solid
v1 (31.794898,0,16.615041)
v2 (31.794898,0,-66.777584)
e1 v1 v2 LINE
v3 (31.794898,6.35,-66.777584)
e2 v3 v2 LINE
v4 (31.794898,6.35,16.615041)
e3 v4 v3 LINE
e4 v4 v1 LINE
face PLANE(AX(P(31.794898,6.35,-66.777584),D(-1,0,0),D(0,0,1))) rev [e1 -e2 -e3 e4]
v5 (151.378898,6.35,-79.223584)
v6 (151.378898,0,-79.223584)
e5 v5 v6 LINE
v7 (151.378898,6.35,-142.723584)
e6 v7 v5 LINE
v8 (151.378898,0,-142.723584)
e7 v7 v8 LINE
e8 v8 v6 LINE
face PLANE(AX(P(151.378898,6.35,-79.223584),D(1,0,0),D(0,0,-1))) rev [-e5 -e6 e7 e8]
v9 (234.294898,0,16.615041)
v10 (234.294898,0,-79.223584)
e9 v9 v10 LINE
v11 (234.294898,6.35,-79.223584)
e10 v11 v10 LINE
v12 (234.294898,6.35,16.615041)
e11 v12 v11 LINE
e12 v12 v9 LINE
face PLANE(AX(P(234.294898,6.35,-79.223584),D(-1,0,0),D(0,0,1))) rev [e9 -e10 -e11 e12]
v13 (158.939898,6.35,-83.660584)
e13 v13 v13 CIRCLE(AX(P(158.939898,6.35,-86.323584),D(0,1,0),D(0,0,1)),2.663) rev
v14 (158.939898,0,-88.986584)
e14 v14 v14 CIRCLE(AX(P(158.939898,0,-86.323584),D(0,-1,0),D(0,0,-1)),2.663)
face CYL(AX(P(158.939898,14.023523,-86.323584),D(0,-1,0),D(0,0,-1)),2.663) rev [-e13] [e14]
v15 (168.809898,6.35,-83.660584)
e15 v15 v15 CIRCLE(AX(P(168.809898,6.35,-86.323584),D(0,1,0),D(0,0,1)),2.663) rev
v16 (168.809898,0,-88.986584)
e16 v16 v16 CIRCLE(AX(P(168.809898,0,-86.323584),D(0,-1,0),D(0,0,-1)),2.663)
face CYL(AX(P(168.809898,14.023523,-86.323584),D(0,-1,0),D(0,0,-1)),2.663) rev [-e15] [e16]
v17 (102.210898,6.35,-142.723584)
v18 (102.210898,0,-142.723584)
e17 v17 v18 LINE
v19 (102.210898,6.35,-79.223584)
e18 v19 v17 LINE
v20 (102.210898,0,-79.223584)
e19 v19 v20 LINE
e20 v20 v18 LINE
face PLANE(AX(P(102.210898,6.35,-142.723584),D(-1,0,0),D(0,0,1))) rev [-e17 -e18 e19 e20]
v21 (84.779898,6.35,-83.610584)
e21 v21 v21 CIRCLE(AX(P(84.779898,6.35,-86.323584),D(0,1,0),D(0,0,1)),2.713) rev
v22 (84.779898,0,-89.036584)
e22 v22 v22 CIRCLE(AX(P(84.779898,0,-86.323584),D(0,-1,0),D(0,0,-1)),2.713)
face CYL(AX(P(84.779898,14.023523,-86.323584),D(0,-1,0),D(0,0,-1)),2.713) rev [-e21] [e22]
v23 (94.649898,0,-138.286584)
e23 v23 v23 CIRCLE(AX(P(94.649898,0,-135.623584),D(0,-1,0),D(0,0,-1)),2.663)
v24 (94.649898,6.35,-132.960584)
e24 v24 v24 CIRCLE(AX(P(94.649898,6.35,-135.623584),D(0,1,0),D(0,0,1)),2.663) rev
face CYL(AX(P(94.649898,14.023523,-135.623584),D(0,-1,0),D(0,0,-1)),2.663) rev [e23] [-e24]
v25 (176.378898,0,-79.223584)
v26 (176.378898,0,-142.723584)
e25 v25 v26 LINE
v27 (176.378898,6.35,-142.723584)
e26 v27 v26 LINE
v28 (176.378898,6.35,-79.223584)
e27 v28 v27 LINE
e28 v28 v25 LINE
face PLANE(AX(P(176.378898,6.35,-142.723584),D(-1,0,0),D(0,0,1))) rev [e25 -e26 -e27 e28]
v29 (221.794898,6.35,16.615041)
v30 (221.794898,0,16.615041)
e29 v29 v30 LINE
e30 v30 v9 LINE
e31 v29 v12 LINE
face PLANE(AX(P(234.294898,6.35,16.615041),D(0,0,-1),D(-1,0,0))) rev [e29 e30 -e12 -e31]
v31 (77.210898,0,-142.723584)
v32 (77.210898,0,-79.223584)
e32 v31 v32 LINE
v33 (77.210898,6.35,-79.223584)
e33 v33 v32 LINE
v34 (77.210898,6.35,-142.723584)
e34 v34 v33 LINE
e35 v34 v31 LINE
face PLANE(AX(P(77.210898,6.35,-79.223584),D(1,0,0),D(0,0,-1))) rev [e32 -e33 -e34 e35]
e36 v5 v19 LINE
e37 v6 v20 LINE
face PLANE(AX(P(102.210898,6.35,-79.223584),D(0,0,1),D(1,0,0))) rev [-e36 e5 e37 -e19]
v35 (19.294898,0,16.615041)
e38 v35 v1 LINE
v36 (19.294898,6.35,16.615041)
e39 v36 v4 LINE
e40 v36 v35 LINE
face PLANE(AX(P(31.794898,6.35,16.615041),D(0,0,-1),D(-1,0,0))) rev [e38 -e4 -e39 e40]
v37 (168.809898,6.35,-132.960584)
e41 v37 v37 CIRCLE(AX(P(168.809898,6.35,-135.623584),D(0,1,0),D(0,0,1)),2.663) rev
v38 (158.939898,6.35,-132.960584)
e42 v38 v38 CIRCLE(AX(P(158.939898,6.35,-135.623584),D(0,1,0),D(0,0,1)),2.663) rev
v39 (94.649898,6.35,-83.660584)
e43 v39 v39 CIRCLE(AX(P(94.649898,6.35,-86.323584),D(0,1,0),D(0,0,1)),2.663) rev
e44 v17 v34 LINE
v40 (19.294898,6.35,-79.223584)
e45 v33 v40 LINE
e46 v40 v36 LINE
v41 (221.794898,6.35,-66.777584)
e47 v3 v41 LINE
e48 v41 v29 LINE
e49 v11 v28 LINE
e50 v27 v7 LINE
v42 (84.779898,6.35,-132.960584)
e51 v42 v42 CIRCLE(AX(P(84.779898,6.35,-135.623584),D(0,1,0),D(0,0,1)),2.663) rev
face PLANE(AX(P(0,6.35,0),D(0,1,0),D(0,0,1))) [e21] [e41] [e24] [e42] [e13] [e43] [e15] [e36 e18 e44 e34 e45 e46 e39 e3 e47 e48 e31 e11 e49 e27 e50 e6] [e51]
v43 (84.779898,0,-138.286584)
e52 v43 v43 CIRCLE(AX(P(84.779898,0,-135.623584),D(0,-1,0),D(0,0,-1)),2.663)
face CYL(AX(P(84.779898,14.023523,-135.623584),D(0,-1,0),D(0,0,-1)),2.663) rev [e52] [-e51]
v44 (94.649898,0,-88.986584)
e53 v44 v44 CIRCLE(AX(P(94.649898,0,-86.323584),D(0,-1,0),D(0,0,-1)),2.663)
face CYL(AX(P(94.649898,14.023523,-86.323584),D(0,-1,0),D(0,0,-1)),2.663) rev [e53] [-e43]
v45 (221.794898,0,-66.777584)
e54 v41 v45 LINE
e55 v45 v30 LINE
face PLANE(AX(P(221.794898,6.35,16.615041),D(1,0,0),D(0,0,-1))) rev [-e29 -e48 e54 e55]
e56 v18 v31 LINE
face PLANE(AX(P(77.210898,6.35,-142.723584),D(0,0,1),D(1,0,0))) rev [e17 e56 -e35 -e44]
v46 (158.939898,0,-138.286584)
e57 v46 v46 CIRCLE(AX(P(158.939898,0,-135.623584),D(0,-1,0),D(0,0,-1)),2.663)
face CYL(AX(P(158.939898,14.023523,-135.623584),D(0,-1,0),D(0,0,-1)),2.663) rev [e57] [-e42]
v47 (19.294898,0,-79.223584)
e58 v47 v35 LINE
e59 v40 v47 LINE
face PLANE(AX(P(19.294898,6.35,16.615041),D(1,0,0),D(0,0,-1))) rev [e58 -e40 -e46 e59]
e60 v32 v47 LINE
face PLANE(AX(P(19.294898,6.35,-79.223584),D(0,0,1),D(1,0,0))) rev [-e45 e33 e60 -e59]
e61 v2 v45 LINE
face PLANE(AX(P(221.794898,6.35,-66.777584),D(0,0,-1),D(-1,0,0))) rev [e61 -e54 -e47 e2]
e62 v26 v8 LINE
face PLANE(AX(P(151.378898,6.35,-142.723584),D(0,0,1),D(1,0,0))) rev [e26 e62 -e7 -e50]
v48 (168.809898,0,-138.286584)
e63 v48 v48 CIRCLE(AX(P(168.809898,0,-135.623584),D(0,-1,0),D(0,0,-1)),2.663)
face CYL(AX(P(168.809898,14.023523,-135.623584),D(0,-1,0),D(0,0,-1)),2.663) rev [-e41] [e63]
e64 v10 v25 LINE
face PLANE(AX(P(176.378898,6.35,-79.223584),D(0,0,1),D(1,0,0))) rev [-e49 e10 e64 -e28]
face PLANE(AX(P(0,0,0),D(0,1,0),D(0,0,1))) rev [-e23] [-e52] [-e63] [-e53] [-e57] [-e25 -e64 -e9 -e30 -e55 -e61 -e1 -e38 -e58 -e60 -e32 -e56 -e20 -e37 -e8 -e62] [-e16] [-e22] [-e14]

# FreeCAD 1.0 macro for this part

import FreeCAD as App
import Part
import Sketcher
from FreeCAD import Vector
Q = App.Units.Quantity


def add_polygon(sketch, points):
    """Adds a closed chain of lines whose ends are joined by coincident constraints."""
    first, n = sketch.GeometryCount, len(points)
    for a, b in zip(points, points[1:] + points[:1]):
        sketch.addGeometry(Part.LineSegment(App.Vector(*a, 0), App.Vector(*b, 0)), False)
    for i in range(n):
        sketch.addConstraint(Sketcher.Constraint("Coincident", first + i, 2, first + (i + 1) % n, 1))

doc = App.newDocument("Part")
body = doc.addObject("PartDesign::Body", "Body")

sketch1 = body.newObject("Sketcher::SketchObject", "Sketch")
sketch1.AttachmentSupport = (doc.getObject("XZ_Plane"), [""])
sketch1.MapMode = "FlatFace"
add_polygon(sketch1, [(19, -79), (19, 17), (32, 17), (32, -67), (222, -67), (222, 17), (234, 17), (234, -79), (176, -79), (176, -143), (151, -143), (151, -79), (102, -79), (102, -143), (77, -143), (77, -79)])
sketch1.addConstraint([
    Sketcher.Constraint("Vertical", 0),
    Sketcher.Constraint("Horizontal", 1),
    Sketcher.Constraint("Vertical", 2),
    Sketcher.Constraint("Horizontal", 3),
    Sketcher.Constraint("Vertical", 4),
    Sketcher.Constraint("Horizontal", 5),
    Sketcher.Constraint("Vertical", 6),
    Sketcher.Constraint("Horizontal", 7),
    Sketcher.Constraint("Vertical", 8),
    Sketcher.Constraint("Horizontal", 9),
    Sketcher.Constraint("Vertical", 10),
    Sketcher.Constraint("Horizontal", 11),
    Sketcher.Constraint("Vertical", 12),
    Sketcher.Constraint("Horizontal", 13),
    Sketcher.Constraint("Vertical", 14),
    Sketcher.Constraint("Horizontal", 15),
    Sketcher.Constraint("Horizontal", 1, 2, 4, 2),
    Sketcher.Constraint("Horizontal", 7, 2, 10, 2),
    Sketcher.Constraint("Horizontal", 9, 2, 12, 2),
    Sketcher.Constraint("Horizontal", 11, 2, 14, 2),
    Sketcher.Constraint("Equal", 1, 5),
    Sketcher.Constraint("Equal", 9, 13),
    Sketcher.Constraint("Equal", 7, 15),
    Sketcher.Constraint("DistanceX", 3, 1, 3, 2, Q("190 mm")),
    Sketcher.Constraint("DistanceX", 9, 2, 9, 1, Q("25 mm")),
    Sketcher.Constraint("DistanceX", 1, 1, 1, 2, Q("12.5 mm")),
    Sketcher.Constraint("DistanceY", 8, 2, 8, 1, Q("63.5 mm")),
    Sketcher.Constraint("DistanceX", 7, 2, 7, 1, Q("57.916 mm")),
    Sketcher.Constraint("DistanceY", 6, 2, 3, 2, Q("12.446 mm")),
    Sketcher.Constraint("DistanceY", 0, 1, 0, 2, Q("95.838624 mm")),
    Sketcher.Constraint("DistanceY", -1, 1, 0, 2, Q("16.615041 mm")),
    Sketcher.Constraint("DistanceX", -1, 1, 0, 2, Q("19.294898 mm")),
])
pad1 = body.newObject("PartDesign::Pad", "Pad")
pad1.Profile = sketch1
pad1.Length = 6.35
pad1.Reversed = True

sketch2 = body.newObject("Sketcher::SketchObject", "Sketch001")
sketch2.AttachmentSupport = (doc.getObject("XZ_Plane"), [""])
sketch2.MapMode = "FlatFace"
sketch2.addGeometry([
    Part.Circle(Vector(84.8, -86.3, 0), Vector(0, 0, 1), 2.7),
    Part.Circle(Vector(94.6, -86.3, 0), Vector(0, 0, 1), 2.7),
    Part.Circle(Vector(84.8, -135.6, 0), Vector(0, 0, 1), 2.7),
    Part.Circle(Vector(94.6, -135.6, 0), Vector(0, 0, 1), 2.7),
    Part.Circle(Vector(158.9, -86.3, 0), Vector(0, 0, 1), 2.7),
    Part.Circle(Vector(168.8, -86.3, 0), Vector(0, 0, 1), 2.7),
    Part.Circle(Vector(158.9, -135.6, 0), Vector(0, 0, 1), 2.7),
    Part.Circle(Vector(168.8, -135.6, 0), Vector(0, 0, 1), 2.7),
], False)
sketch2.addConstraint([
    Sketcher.Constraint("Equal", 1, 2),
    Sketcher.Constraint("Equal", 2, 3),
    Sketcher.Constraint("Equal", 3, 4),
    Sketcher.Constraint("Equal", 4, 5),
    Sketcher.Constraint("Equal", 5, 6),
    Sketcher.Constraint("Equal", 6, 7),
    Sketcher.Constraint("Horizontal", 0, 3, 1, 3),
    Sketcher.Constraint("Horizontal", 2, 3, 3, 3),
    Sketcher.Constraint("Horizontal", 1, 3, 4, 3),
    Sketcher.Constraint("Horizontal", 4, 3, 5, 3),
    Sketcher.Constraint("Horizontal", 3, 3, 6, 3),
    Sketcher.Constraint("Horizontal", 6, 3, 7, 3),
    Sketcher.Constraint("Vertical", 0, 3, 2, 3),
    Sketcher.Constraint("Vertical", 1, 3, 3, 3),
    Sketcher.Constraint("Vertical", 4, 3, 6, 3),
    Sketcher.Constraint("Vertical", 5, 3, 7, 3),
    Sketcher.Constraint("Diameter", 0, Q("5.426 mm")),
    Sketcher.Constraint("Diameter", 1, Q("5.326 mm")),
    Sketcher.Constraint("DistanceY", 2, 3, 0, 3, Q("49.3 mm")),
    Sketcher.Constraint("DistanceX", 0, 3, 1, 3, Q("9.87 mm")),
    Sketcher.Constraint("DistanceX", 1, 3, 4, 3, Q("64.29 mm")),
    Sketcher.Constraint("DistanceX", 4, 3, 5, 3, Q("9.87 mm")),
    Sketcher.Constraint("DistanceX", -1, 1, 0, 3, Q("84.779898 mm")),
    Sketcher.Constraint("DistanceY", 0, 3, -1, 1, Q("86.323584 mm")),
])
pocket1 = body.newObject("PartDesign::Pocket", "Pocket")
pocket1.Profile = sketch2
pocket1.Length = 6.35

doc.recompute()
